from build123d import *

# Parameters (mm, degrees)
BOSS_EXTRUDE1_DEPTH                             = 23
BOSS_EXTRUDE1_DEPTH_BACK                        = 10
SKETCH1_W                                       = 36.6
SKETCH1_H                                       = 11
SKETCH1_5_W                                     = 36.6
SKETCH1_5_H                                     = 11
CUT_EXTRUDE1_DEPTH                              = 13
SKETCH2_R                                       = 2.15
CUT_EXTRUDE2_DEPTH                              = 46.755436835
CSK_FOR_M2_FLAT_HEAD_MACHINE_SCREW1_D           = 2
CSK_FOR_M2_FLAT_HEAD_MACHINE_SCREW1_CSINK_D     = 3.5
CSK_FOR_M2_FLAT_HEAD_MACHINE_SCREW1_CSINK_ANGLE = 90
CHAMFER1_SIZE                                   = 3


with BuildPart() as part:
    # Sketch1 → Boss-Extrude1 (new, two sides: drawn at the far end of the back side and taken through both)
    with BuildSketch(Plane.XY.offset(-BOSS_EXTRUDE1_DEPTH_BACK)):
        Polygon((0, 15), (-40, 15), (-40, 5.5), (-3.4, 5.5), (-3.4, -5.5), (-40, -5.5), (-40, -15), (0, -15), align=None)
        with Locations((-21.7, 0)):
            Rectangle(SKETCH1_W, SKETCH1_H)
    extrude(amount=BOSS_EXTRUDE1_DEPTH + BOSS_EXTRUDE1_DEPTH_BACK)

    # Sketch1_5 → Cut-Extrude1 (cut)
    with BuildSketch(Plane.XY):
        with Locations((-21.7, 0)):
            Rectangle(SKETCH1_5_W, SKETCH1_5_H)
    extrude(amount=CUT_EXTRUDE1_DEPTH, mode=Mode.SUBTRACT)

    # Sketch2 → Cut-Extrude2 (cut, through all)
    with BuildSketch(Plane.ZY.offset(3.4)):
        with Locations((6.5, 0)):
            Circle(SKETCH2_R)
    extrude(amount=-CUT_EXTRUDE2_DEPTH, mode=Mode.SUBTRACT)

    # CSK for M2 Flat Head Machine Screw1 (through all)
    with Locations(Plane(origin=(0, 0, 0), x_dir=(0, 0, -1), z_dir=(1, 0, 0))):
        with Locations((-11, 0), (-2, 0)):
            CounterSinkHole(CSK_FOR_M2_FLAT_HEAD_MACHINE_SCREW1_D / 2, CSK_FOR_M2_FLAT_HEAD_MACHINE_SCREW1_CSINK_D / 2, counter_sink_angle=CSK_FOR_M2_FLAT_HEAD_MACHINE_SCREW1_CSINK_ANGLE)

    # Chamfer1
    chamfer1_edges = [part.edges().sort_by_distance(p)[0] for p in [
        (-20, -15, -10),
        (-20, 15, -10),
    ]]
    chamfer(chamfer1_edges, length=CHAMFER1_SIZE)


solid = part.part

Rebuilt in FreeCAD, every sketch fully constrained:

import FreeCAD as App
import Part
import Sketcher
from FreeCAD import Vector


def edges_at(feature, points):
    """Names of the edges that pass closest to the given points."""
    edges = feature.Shape.Edges
    near = lambda p: min(range(len(edges)), key=lambda i: edges[i].distToShape(Part.Vertex(*p))[0])
    return sorted({f"Edge{near(p) + 1}" for p in points})

doc = App.newDocument("Part")
params = doc.addObject("Spreadsheet::Sheet", "Params")
for row, (alias, value) in enumerate([
    ("sketch1_width", "40 mm"),
    ("sketch1_height", "30 mm"),
    ("pad1_length", "23 mm"),
    ("pad1_length2", "10 mm"),
    ("sketch2_height", "11 mm"),
    ("sketch2_width", "36.6 mm"),
    ("pocket1_length", "13 mm"),
    ("sketch3_diameter", "4.3 mm"),
    ("sketch4_diameter", "2 mm"),
    ("hole_diameter", "2 mm"),
    ("hole_csink_diameter", "3.5 mm"),
    ("chamfer_size", "3 mm"),
], start=1):
    params.set(f"A{row}", alias)
    params.set(f"B{row}", "=" + value)
    params.setAlias(f"B{row}", alias)

body = doc.addObject("PartDesign::Body", "Body")

sketch1 = doc.addObject("Sketcher::SketchObject", "Sketch")
body.addObject(sketch1)
sketch1.AttachmentSupport = (doc.XY_Plane, [""])
sketch1.MapMode = "FlatFace"
sketch1.addGeometry([
    Part.LineSegment(Vector(0, 15, 0), Vector(-40, 15, 0)),
    Part.LineSegment(Vector(-40, 15, 0), Vector(-40, -15, 0)),
    Part.LineSegment(Vector(-40, -15, 0), Vector(0, -15, 0)),
    Part.LineSegment(Vector(0, -15, 0), Vector(0, 15, 0)),
], False)
sketch1.addConstraint([
    Sketcher.Constraint("Coincident", 0, 2, 1, 1),
    Sketcher.Constraint("Coincident", 1, 2, 2, 1),
    Sketcher.Constraint("Coincident", 2, 2, 3, 1),
    Sketcher.Constraint("Coincident", 3, 2, 0, 1),
    Sketcher.Constraint("Horizontal", 0),
    Sketcher.Constraint("Vertical", 1),
    Sketcher.Constraint("Horizontal", 2),
    Sketcher.Constraint("Vertical", 3),
    Sketcher.Constraint("Symmetric", 2, 2, 3, 2, -1, 1),
    Sketcher.Constraint("DistanceX", 0, 2, 0, 1, 40.0),
    Sketcher.Constraint("DistanceY", 1, 2, 1, 1, 30.0),
])
sketch1.setExpression("Constraints[9]", "Params.sketch1_width")
sketch1.setExpression("Constraints[10]", "Params.sketch1_height")
pad1 = doc.addObject("PartDesign::Pad", "Pad")
body.addObject(pad1)
pad1.Profile = sketch1
pad1.Type = "TwoLengths"
pad1.setExpression("Length", "Params.pad1_length")
pad1.setExpression("Length2", "Params.pad1_length2")

sketch2 = doc.addObject("Sketcher::SketchObject", "Sketch001")
body.addObject(sketch2)
sketch2.AttachmentSupport = (doc.XY_Plane, [""])
sketch2.MapMode = "FlatFace"
sketch2.addGeometry([
    Part.LineSegment(Vector(-40, 5.5, 0), Vector(-40, -5.5, 0)),
    Part.LineSegment(Vector(-40, -5.5, 0), Vector(-3.4, -5.5, 0)),
    Part.LineSegment(Vector(-3.4, -5.5, 0), Vector(-3.4, 5.5, 0)),
    Part.LineSegment(Vector(-3.4, 5.5, 0), Vector(-40, 5.5, 0)),
], False)
sketch2.addConstraint([
    Sketcher.Constraint("Coincident", 0, 2, 1, 1),
    Sketcher.Constraint("Coincident", 1, 2, 2, 1),
    Sketcher.Constraint("Coincident", 2, 2, 3, 1),
    Sketcher.Constraint("Coincident", 3, 2, 0, 1),
    Sketcher.Constraint("Vertical", 0),
    Sketcher.Constraint("Horizontal", 1),
    Sketcher.Constraint("Vertical", 2),
    Sketcher.Constraint("Horizontal", 3),
    Sketcher.Constraint("DistanceY", 0, 2, 0, 1, 11.0),
    Sketcher.Constraint("DistanceX", 1, 1, 1, 2, 36.6),
    Sketcher.Constraint("DistanceX", 0, 2, -1, 1, 40.0),
    Sketcher.Constraint("DistanceY", 0, 2, -1, 1, 5.5),
])
sketch2.setExpression("Constraints[8]", "Params.sketch2_height")
sketch2.setExpression("Constraints[9]", "Params.sketch2_width")
pocket1 = doc.addObject("PartDesign::Pocket", "Pocket")
body.addObject(pocket1)
pocket1.Profile = sketch2
pocket1.setExpression("Length", "Params.pocket1_length")
pocket1.Reversed = True

sketch3 = doc.addObject("Sketcher::SketchObject", "Sketch002")
body.addObject(sketch3)
sketch3.AttachmentSupport = (doc.YZ_Plane, [""])
sketch3.MapMode = "FlatFace"
sketch3.AttachmentOffset = App.Placement(Vector(0, 0, -3.4), App.Rotation())
sketch3.addGeometry(Part.Circle(Vector(0, 6.5, 0), Vector(0, 0, 1), 2.15), False)
sketch3.addConstraint([
    Sketcher.Constraint("PointOnObject", 0, 3, -2),
    Sketcher.Constraint("Diameter", 0, 4.3),
    Sketcher.Constraint("DistanceY", -1, 1, 0, 3, 6.5),
])
sketch3.setExpression("Constraints[1]", "Params.sketch3_diameter")
pocket2 = doc.addObject("PartDesign::Pocket", "Pocket001")
body.addObject(pocket2)
pocket2.Profile = sketch3
pocket2.Type = "ThroughAll"
pocket2.Reversed = True

sketch4 = doc.addObject("Sketcher::SketchObject", "Sketch003")
body.addObject(sketch4)
sketch4.AttachmentSupport = (doc.YZ_Plane, [""])
sketch4.MapMode = "FlatFace"
sketch4.addGeometry([
    Part.Circle(Vector(0, 11, 0), Vector(0, 0, 1), 1),
    Part.Circle(Vector(0, 2, 0), Vector(0, 0, 1), 1),
], False)
sketch4.addConstraint([
    Sketcher.Constraint("Equal", 0, 1),
    Sketcher.Constraint("PointOnObject", 0, 3, -2),
    Sketcher.Constraint("PointOnObject", 1, 3, -2),
    Sketcher.Constraint("Diameter", 0, 2.0),
    Sketcher.Constraint("DistanceY", -1, 1, 0, 3, 11.0),
    Sketcher.Constraint("DistanceY", -1, 1, 1, 3, 2.0),
])
sketch4.setExpression("Constraints[3]", "Params.sketch4_diameter")
doc.recompute()
hole = doc.addObject("PartDesign::Hole", "Hole")
body.addObject(hole)
hole.Profile = sketch4
hole.ThreadType = "None"
hole.setExpression("Diameter", "Params.hole_diameter")
hole.DepthType = "ThroughAll"
hole.HoleCutType = "Countersink"
hole.setExpression("HoleCutDiameter", "Params.hole_csink_diameter")
hole.HoleCutCountersinkAngle = 90
doc.recompute()

chamfer = doc.addObject("PartDesign::Chamfer", "Chamfer")
body.addObject(chamfer)
chamfer.Base = (hole, edges_at(hole, [(-20, -15, -10), (-20, 15, -10)]))
chamfer.setExpression("Size", "Params.chamfer_size")

doc.recompute()
